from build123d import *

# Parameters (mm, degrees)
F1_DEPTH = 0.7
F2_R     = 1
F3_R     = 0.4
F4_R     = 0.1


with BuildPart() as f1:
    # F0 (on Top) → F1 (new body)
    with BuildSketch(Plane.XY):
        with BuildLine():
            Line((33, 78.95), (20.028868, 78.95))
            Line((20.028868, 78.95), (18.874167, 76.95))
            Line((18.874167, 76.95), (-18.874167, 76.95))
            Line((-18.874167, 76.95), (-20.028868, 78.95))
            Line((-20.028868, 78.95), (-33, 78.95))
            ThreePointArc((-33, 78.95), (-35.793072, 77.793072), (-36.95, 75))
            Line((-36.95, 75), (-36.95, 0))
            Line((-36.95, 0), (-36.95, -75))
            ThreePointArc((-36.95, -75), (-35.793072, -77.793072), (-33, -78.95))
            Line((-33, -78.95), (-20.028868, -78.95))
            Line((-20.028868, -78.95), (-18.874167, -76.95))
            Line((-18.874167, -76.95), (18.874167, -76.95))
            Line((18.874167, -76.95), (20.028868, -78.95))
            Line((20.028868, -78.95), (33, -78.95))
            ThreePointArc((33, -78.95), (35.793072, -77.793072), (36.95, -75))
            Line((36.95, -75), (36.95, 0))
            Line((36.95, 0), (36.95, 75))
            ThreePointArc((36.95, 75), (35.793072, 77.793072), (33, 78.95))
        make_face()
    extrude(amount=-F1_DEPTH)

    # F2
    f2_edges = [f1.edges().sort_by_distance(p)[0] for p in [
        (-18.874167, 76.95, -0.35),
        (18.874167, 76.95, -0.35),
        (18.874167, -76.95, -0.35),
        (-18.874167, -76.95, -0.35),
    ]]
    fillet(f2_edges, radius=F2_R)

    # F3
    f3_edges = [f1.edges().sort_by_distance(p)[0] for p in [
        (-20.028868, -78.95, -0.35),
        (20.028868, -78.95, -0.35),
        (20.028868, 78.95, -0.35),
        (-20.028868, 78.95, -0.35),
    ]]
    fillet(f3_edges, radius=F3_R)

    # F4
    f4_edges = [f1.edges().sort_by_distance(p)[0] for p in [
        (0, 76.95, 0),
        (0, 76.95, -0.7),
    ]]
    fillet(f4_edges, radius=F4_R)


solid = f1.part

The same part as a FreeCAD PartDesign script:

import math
import FreeCAD as App
import Part
import Sketcher

V = App.Vector
Q = App.Units.Quantity


def edges_at(feature, points):
    """Names of the edges that pass closest to the given points."""
    edges = feature.Shape.Edges
    near = lambda p: min(range(len(edges)), key=lambda i: edges[i].distToShape(Part.Vertex(*p))[0])
    return sorted({f"Edge{near(p) + 1}" for p in points})

doc = App.newDocument("Part")
body = doc.addObject("PartDesign::Body", "Body")

sketch1 = body.newObject("Sketcher::SketchObject", "Sketch")
sketch1.AttachmentSupport = (doc.getObject("XY_Plane"), [""])
sketch1.MapMode = "FlatFace"
sketch1.addGeometry(Part.LineSegment(V(33, 79, 0), V(20, 79, 0)), False)
sketch1.addGeometry(Part.LineSegment(V(20, 79, 0), V(18.9, 77, 0)), False)
sketch1.addGeometry(Part.LineSegment(V(18.9, 77, 0), V(-18.9, 77, 0)), False)
sketch1.addGeometry(Part.LineSegment(V(-18.9, 77, 0), V(-20, 79, 0)), False)
sketch1.addGeometry(Part.LineSegment(V(-20, 79, 0), V(-33, 79, 0)), False)
sketch1.addGeometry(Part.ArcOfCircle(Part.Circle(V(-33, 75, 0), V(0, 0, 1), 3.9), math.radians(90), math.radians(180)), False)
sketch1.addGeometry(Part.LineSegment(V(-37, 75, 0), V(-37, -75, 0)), False)
sketch1.addGeometry(Part.ArcOfCircle(Part.Circle(V(-33, -75, 0), V(0, 0, 1), 3.9), math.radians(180), math.radians(270)), False)
sketch1.addGeometry(Part.LineSegment(V(-33, -79, 0), V(-20, -79, 0)), False)
sketch1.addGeometry(Part.LineSegment(V(-20, -79, 0), V(-18.9, -77, 0)), False)
sketch1.addGeometry(Part.LineSegment(V(-18.9, -77, 0), V(18.9, -77, 0)), False)
sketch1.addGeometry(Part.LineSegment(V(18.9, -77, 0), V(20, -79, 0)), False)
sketch1.addGeometry(Part.LineSegment(V(20, -79, 0), V(33, -79, 0)), False)
sketch1.addGeometry(Part.ArcOfCircle(Part.Circle(V(33, -75, 0), V(0, 0, 1), 3.9), math.radians(-90), math.radians(0)), False)
sketch1.addGeometry(Part.LineSegment(V(37, -75, 0), V(37, 75, 0)), False)
sketch1.addGeometry(Part.ArcOfCircle(Part.Circle(V(33, 75, 0), V(0, 0, 1), 3.9), math.radians(0), math.radians(90)), False)
sketch1.addConstraint(Sketcher.Constraint("Coincident", 0, 2, 1, 1))
sketch1.addConstraint(Sketcher.Constraint("Coincident", 1, 2, 2, 1))
sketch1.addConstraint(Sketcher.Constraint("Coincident", 2, 2, 3, 1))
sketch1.addConstraint(Sketcher.Constraint("Coincident", 3, 2, 4, 1))
sketch1.addConstraint(Sketcher.Constraint("Tangent", 4, 2, 5, 1))
sketch1.addConstraint(Sketcher.Constraint("Tangent", 5, 2, 6, 1))
sketch1.addConstraint(Sketcher.Constraint("Tangent", 6, 2, 7, 1))
sketch1.addConstraint(Sketcher.Constraint("Tangent", 7, 2, 8, 1))
sketch1.addConstraint(Sketcher.Constraint("Coincident", 8, 2, 9, 1))
sketch1.addConstraint(Sketcher.Constraint("Coincident", 9, 2, 10, 1))
sketch1.addConstraint(Sketcher.Constraint("Coincident", 10, 2, 11, 1))
sketch1.addConstraint(Sketcher.Constraint("Coincident", 11, 2, 12, 1))
sketch1.addConstraint(Sketcher.Constraint("Tangent", 12, 2, 13, 1))
sketch1.addConstraint(Sketcher.Constraint("Tangent", 13, 2, 14, 1))
sketch1.addConstraint(Sketcher.Constraint("Tangent", 14, 2, 15, 1))
sketch1.addConstraint(Sketcher.Constraint("Tangent", 15, 2, 0, 1))
sketch1.addConstraint(Sketcher.Constraint("Horizontal", 0))
sketch1.addConstraint(Sketcher.Constraint("Horizontal", 2))
sketch1.addConstraint(Sketcher.Constraint("Horizontal", 4))
sketch1.addConstraint(Sketcher.Constraint("Vertical", 6))
sketch1.addConstraint(Sketcher.Constraint("Horizontal", 8))
sketch1.addConstraint(Sketcher.Constraint("Horizontal", 10))
sketch1.addConstraint(Sketcher.Constraint("Horizontal", 12))
sketch1.addConstraint(Sketcher.Constraint("Vertical", 14))
sketch1.addConstraint(Sketcher.Constraint("Equal", 5, 7))
sketch1.addConstraint(Sketcher.Constraint("Equal", 7, 13))
sketch1.addConstraint(Sketcher.Constraint("Equal", 13, 15))
sketch1.addConstraint(Sketcher.Constraint("Symmetric", 5, 3, 13, 3, -1, 1))
sketch1.addConstraint(Sketcher.Constraint("Symmetric", 0, 2, 8, 2, -1, 1))
sketch1.addConstraint(Sketcher.Constraint("Symmetric", 1, 2, 9, 2, -1, 1))
sketch1.addConstraint(Sketcher.Constraint("Symmetric", 0, 2, 3, 2, -2))
sketch1.addConstraint(Sketcher.Constraint("Parallel", 3, 11))
sketch1.addConstraint(Sketcher.Constraint("Vertical", 2, 2, 9, 2))
sketch1.addConstraint(Sketcher.Constraint("Vertical", 1, 2, 10, 2))
sketch1.addConstraint(Sketcher.Constraint("DistanceY", 6, 2, 6, 1, Q("150 mm")))
sketch1.addConstraint(Sketcher.Constraint("Angle", 1, Q("-120.00001 deg")))
sketch1.addConstraint(Sketcher.Constraint("Radius", 5, Q("3.949999 mm")))
sketch1.addConstraint(Sketcher.Constraint("DistanceX", 5, 3, -1, 1, Q("33.000001 mm")))
sketch1.addConstraint(Sketcher.Constraint("DistanceY", 1, 2, 0, 2, Q("2 mm")))
sketch1.addConstraint(Sketcher.Constraint("DistanceX", 0, 2, 0, 1, Q("12.971132 mm")))
pad1 = body.newObject("PartDesign::Pad", "Pad")
pad1.Profile = sketch1
pad1.Length = 0.7
pad1.Reversed = True
doc.recompute()

fillet = body.newObject("PartDesign::Fillet", "Fillet")
fillet.Base = (pad1, edges_at(pad1, [
    (-18.874, 76.95, -0.35),
    (18.874, 76.95, -0.35),
    (18.874, -76.95, -0.35),
    (-18.874, -76.95, -0.35),
]))
fillet.Radius = 1
doc.recompute()

fillet2 = body.newObject("PartDesign::Fillet", "Fillet001")
fillet2.Base = (fillet, edges_at(fillet, [
    (-20.029, -78.95, -0.35),
    (20.029, -78.95, -0.35),
    (20.029, 78.95, -0.35),
    (-20.029, 78.95, -0.35),
]))
fillet2.Radius = 0.4
doc.recompute()

fillet3 = body.newObject("PartDesign::Fillet", "Fillet002")
fillet3.Base = (fillet2, edges_at(fillet2, [(0, 76.95, 0), (0, 76.95, -0.7)]))
fillet3.Radius = 0.1

doc.recompute()
